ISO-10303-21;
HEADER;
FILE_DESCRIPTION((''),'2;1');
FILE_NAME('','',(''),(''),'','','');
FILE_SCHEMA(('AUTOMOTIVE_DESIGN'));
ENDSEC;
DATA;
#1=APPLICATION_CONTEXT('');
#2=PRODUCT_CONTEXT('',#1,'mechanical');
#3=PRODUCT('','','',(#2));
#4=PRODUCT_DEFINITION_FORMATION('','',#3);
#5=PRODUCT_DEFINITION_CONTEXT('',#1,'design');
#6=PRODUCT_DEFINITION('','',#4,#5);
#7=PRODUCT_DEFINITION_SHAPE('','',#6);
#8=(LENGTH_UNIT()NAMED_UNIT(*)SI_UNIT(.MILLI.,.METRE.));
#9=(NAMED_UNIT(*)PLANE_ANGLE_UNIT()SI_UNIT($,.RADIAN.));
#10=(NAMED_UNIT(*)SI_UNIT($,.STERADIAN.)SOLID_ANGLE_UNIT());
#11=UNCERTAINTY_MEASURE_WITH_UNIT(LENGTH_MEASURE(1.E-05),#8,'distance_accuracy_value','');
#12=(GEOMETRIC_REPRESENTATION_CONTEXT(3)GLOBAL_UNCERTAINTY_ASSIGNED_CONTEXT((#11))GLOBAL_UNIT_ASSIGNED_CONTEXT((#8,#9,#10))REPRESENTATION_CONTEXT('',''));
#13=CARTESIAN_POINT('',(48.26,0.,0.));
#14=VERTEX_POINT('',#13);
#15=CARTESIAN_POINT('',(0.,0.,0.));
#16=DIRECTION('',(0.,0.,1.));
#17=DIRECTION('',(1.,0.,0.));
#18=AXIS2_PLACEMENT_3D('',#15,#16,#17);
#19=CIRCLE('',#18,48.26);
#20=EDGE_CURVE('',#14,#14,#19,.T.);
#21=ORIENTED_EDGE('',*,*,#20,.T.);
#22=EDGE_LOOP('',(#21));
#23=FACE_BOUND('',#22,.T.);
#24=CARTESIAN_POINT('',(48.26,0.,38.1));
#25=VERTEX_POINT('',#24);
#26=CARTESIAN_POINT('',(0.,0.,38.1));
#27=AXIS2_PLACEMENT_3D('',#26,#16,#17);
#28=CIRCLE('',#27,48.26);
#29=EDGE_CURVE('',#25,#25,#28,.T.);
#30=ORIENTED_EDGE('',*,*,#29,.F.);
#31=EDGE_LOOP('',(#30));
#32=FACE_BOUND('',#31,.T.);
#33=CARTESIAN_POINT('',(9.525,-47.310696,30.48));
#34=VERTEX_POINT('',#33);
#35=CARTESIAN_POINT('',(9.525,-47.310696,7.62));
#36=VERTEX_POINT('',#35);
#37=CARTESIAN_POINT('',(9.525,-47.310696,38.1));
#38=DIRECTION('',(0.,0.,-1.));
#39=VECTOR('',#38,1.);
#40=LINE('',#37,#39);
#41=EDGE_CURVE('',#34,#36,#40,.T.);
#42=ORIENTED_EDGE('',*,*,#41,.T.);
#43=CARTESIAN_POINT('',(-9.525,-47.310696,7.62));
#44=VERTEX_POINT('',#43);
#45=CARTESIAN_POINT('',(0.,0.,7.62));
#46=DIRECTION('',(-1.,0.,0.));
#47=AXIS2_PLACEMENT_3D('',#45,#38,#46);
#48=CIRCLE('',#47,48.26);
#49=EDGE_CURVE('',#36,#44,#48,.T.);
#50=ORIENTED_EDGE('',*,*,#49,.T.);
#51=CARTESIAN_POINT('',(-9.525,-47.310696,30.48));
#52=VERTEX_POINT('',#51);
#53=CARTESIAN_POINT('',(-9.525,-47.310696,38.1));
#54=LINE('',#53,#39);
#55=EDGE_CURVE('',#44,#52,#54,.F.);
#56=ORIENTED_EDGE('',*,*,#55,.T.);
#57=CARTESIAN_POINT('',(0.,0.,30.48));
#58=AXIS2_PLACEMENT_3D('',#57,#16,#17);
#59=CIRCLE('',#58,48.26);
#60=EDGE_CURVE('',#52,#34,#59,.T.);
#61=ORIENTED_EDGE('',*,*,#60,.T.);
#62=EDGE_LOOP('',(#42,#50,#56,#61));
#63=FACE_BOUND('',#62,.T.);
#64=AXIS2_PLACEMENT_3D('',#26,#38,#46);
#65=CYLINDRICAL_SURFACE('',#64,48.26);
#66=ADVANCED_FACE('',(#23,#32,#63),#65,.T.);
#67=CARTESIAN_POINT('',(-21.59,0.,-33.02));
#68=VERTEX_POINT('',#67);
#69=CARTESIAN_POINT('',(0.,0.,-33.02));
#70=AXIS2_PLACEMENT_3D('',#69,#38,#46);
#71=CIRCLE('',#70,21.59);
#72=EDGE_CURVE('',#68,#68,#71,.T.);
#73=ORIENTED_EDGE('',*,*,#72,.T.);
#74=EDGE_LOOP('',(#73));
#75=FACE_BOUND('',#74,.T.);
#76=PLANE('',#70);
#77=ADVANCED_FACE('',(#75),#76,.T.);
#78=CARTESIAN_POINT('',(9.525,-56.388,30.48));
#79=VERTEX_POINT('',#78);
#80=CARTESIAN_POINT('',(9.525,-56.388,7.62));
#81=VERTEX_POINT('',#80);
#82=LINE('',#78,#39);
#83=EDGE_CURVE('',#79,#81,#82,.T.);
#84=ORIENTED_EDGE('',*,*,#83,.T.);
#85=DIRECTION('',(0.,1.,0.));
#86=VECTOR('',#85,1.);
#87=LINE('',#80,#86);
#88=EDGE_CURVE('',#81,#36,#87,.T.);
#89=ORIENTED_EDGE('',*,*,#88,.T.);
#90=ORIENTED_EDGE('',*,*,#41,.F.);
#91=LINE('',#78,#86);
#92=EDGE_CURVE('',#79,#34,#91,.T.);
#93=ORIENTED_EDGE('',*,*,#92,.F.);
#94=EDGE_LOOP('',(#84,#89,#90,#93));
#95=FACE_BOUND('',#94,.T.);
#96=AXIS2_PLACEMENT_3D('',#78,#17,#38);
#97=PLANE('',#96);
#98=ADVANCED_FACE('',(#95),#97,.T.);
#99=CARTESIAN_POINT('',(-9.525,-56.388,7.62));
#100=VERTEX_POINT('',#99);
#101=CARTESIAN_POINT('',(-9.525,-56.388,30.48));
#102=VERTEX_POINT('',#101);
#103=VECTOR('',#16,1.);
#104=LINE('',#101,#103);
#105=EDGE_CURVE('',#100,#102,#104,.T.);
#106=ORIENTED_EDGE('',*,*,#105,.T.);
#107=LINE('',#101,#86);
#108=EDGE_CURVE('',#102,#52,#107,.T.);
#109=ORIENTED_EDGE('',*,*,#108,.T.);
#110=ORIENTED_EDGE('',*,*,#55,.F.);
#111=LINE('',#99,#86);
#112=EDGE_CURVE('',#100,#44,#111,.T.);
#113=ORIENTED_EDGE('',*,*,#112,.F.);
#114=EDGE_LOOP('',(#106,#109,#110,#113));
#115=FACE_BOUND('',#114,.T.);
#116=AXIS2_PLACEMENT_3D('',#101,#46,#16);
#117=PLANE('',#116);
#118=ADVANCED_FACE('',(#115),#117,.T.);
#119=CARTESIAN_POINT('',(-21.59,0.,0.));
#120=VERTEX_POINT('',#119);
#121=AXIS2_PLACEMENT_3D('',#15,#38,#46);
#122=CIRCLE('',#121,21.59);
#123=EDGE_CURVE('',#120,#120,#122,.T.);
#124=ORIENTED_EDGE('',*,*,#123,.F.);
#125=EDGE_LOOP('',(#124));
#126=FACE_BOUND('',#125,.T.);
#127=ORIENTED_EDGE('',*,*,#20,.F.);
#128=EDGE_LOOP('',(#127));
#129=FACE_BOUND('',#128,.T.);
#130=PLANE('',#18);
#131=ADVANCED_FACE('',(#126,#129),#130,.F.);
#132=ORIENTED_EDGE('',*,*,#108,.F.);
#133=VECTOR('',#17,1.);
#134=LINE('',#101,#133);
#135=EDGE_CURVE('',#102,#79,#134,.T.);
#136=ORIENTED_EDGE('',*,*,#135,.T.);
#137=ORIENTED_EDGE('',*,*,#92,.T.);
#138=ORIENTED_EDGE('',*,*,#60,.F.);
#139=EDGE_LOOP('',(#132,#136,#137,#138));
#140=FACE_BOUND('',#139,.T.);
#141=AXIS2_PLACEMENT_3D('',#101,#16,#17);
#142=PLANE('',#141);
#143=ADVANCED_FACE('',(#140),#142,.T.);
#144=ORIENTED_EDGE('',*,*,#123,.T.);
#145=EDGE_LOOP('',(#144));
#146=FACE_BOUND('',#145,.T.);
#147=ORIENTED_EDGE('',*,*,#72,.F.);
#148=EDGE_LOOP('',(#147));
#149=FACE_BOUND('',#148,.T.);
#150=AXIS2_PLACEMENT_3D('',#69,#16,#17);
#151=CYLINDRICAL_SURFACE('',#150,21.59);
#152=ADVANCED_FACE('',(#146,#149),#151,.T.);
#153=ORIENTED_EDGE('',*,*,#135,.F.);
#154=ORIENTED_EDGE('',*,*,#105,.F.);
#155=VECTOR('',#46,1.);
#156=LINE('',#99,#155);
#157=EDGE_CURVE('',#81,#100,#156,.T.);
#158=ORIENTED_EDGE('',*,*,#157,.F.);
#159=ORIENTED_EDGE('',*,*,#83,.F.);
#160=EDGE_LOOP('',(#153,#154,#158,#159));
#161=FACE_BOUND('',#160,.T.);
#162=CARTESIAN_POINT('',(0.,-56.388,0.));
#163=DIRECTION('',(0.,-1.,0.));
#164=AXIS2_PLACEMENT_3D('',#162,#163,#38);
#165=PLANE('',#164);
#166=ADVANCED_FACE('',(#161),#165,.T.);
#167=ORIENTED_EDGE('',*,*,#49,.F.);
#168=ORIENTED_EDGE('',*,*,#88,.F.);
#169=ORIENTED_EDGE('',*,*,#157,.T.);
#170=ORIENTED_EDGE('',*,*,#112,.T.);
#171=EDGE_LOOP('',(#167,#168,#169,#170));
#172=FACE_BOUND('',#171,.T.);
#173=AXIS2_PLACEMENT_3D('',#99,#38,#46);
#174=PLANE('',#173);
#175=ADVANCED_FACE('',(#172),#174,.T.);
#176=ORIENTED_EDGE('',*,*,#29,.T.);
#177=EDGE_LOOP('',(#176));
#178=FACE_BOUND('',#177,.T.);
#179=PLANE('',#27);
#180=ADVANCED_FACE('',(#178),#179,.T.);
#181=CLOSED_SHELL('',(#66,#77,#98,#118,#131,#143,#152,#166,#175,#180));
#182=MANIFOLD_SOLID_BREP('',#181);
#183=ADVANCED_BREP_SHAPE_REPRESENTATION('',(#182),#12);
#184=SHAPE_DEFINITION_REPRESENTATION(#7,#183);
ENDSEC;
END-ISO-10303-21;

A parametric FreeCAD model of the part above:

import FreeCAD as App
import Part
import Sketcher
from FreeCAD import Vector
Q = App.Units.Quantity


def add_polygon(sketch, points):
    """Adds a closed chain of lines whose ends are joined by coincident constraints."""
    first, n = sketch.GeometryCount, len(points)
    for a, b in zip(points, points[1:] + points[:1]):
        sketch.addGeometry(Part.LineSegment(App.Vector(*a, 0), App.Vector(*b, 0)), False)
    for i in range(n):
        sketch.addConstraint(Sketcher.Constraint("Coincident", first + i, 2, first + (i + 1) % n, 1))

doc = App.newDocument("Part")
body = doc.addObject("PartDesign::Body", "Body")

# Sketch on XY plane
sketch1 = body.newObject("Sketcher::SketchObject", "Sketch")
sketch1.AttachmentSupport = (doc.getObject("XY_Plane"), [""])
sketch1.MapMode = "FlatFace"
sketch1.addGeometry(Part.Circle(Vector(0, 0, 0), Vector(0, 0, 1), 48), False)
sketch1.addConstraint(Sketcher.Constraint("Coincident", 0, 3, -1, 1))
sketch1.addConstraint(Sketcher.Constraint("Diameter", 0, Q("3.8 in")))
pad1 = body.newObject("PartDesign::Pad", "Pad")
pad1.Profile = sketch1
pad1.Length = Q("1.5 in")

# Sketch on XY plane
sketch2 = body.newObject("Sketcher::SketchObject", "Sketch001")
sketch2.AttachmentSupport = (doc.getObject("XY_Plane"), [""])
sketch2.MapMode = "FlatFace"
sketch2.addGeometry(Part.Circle(Vector(0, 0, 0), Vector(0, 0, 1), 22), False)
sketch2.addConstraint(Sketcher.Constraint("Coincident", 0, 3, -1, 1))
sketch2.addConstraint(Sketcher.Constraint("Diameter", 0, Q("1.7 in")))
pad2 = body.newObject("PartDesign::Pad", "Pad001")
pad2.Profile = sketch2
pad2.Length = Q("1.3 in")
pad2.Reversed = True

# Sketch on XZ plane
sketch3 = body.newObject("Sketcher::SketchObject", "Sketch002")
sketch3.AttachmentSupport = (doc.getObject("XZ_Plane"), [""])
sketch3.MapMode = "FlatFace"
add_polygon(sketch3, [(-10, 8), (-10, 30), (10, 30), (10, 8)])  # lines 0-3
sketch3.addConstraint(Sketcher.Constraint("Vertical", 0))
sketch3.addConstraint(Sketcher.Constraint("Horizontal", 1))
sketch3.addConstraint(Sketcher.Constraint("Vertical", 2))
sketch3.addConstraint(Sketcher.Constraint("Horizontal", 3))
sketch3.addConstraint(Sketcher.Constraint("DistanceY", 0, 1, 0, 2, Q("0.9 in")))
sketch3.addConstraint(Sketcher.Constraint("DistanceX", 1, 1, 1, 2, Q("0.75 in")))
sketch3.addConstraint(Sketcher.Constraint("DistanceY", -1, 1, 0, 2, Q("1.2 in")))
sketch3.addConstraint(Sketcher.Constraint("DistanceX", 0, 2, -1, 1, Q("0.375 in")))
pad3 = body.newObject("PartDesign::Pad", "Pad002")
pad3.Profile = sketch3
pad3.Length = Q("2.22 in")

doc.recompute()
